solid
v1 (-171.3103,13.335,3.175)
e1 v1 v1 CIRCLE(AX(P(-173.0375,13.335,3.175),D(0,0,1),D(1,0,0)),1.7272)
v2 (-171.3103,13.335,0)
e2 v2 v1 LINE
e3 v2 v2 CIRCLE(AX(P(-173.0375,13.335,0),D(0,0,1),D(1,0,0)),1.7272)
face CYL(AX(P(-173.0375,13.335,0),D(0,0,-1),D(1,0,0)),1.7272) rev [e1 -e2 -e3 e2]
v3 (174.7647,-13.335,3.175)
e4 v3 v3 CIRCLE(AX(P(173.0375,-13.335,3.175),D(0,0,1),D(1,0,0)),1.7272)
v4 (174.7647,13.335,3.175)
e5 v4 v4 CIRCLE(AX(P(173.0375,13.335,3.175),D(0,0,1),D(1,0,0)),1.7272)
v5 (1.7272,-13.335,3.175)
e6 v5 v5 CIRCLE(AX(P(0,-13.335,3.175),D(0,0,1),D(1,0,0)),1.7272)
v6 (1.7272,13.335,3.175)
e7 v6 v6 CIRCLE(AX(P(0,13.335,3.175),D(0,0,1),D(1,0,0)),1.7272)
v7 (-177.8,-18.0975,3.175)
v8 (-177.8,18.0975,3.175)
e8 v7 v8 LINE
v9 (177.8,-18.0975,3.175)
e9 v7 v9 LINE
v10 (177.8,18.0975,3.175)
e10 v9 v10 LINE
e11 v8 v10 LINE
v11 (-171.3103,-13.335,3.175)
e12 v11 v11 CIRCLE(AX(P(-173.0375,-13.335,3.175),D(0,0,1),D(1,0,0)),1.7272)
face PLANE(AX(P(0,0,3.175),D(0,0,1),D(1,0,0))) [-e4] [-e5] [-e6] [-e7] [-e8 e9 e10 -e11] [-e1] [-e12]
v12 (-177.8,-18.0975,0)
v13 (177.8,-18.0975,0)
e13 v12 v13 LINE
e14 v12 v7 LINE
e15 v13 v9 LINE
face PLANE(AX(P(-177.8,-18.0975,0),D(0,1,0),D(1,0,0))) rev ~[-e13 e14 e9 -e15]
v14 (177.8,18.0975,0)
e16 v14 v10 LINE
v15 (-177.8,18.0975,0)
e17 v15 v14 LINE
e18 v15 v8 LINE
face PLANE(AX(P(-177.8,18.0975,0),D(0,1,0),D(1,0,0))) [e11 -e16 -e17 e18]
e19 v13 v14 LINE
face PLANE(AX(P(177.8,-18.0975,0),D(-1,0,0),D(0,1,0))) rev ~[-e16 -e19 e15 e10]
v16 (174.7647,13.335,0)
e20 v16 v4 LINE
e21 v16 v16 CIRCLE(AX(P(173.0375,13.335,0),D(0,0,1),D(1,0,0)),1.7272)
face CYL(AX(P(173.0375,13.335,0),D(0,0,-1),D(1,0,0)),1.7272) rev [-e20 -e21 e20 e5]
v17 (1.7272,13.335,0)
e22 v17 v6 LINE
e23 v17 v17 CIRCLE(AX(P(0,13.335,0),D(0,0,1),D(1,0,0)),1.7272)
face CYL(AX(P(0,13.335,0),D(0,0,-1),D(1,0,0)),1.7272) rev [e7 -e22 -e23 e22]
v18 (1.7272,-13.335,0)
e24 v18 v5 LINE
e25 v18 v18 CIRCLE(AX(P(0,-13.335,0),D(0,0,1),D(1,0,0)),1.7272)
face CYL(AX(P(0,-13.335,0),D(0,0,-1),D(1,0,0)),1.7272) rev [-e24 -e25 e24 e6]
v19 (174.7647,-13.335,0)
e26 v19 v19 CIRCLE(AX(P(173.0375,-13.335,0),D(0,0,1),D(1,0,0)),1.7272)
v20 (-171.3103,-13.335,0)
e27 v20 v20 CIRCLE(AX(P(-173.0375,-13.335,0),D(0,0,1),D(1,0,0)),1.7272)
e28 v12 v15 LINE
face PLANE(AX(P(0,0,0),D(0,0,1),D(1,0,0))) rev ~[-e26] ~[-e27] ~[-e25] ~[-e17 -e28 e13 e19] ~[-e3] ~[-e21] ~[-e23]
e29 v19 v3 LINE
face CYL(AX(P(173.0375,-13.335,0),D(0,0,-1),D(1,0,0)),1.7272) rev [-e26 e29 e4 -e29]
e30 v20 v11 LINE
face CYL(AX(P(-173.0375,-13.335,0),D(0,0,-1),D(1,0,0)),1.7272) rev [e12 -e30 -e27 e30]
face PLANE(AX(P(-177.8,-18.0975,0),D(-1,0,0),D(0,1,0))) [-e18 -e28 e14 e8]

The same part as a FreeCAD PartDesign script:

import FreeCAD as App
import Part
import Sketcher
from FreeCAD import Vector
Q = App.Units.Quantity


def add_polygon(sketch, points):
    """Adds a closed chain of lines whose ends are joined by coincident constraints."""
    first, n = sketch.GeometryCount, len(points)
    for a, b in zip(points, points[1:] + points[:1]):
        sketch.addGeometry(Part.LineSegment(App.Vector(*a, 0), App.Vector(*b, 0)), False)
    for i in range(n):
        sketch.addConstraint(Sketcher.Constraint("Coincident", first + i, 2, first + (i + 1) % n, 1))

doc = App.newDocument("Part")
body = doc.addObject("PartDesign::Body", "Body")

sketch1 = doc.addObject("Sketcher::SketchObject", "Sketch")
body.addObject(sketch1)
sketch1.AttachmentSupport = (doc.XY_Plane, [""])
sketch1.MapMode = "FlatFace"
add_polygon(sketch1, [(-177.8, 18.0975), (-177.8, -18.0975), (177.8, -18.0975), (177.8, 18.0975)])
sketch1.addGeometry(Part.Circle(Vector(-173.0375, -13.335, 0), Vector(0, 0, 1), 1.7272), False)
sketch1.addGeometry(Part.Circle(Vector(0, -13.335, 0), Vector(0, 0, 1), 1.7272), False)
sketch1.addGeometry(Part.Circle(Vector(173.0375, -13.335, 0), Vector(0, 0, 1), 1.7272), False)
sketch1.addGeometry(Part.Circle(Vector(-173.0375, 13.335, 0), Vector(0, 0, 1), 1.7272), False)
sketch1.addGeometry(Part.Circle(Vector(0, 13.335, 0), Vector(0, 0, 1), 1.7272), False)
sketch1.addGeometry(Part.Circle(Vector(173.0375, 13.335, 0), Vector(0, 0, 1), 1.7272), False)
sketch1.addConstraint(Sketcher.Constraint("Vertical", 0))
sketch1.addConstraint(Sketcher.Constraint("Horizontal", 1))
sketch1.addConstraint(Sketcher.Constraint("Vertical", 2))
sketch1.addConstraint(Sketcher.Constraint("Horizontal", 3))
sketch1.addConstraint(Sketcher.Constraint("Equal", 4, 5))
sketch1.addConstraint(Sketcher.Constraint("Equal", 5, 6))
sketch1.addConstraint(Sketcher.Constraint("Equal", 6, 7))
sketch1.addConstraint(Sketcher.Constraint("Equal", 7, 8))
sketch1.addConstraint(Sketcher.Constraint("Equal", 8, 9))
sketch1.addConstraint(Sketcher.Constraint("Symmetric", 6, 3, 7, 3, -1, 1))
sketch1.addConstraint(Sketcher.Constraint("Symmetric", 5, 3, 8, 3, -1, 1))
sketch1.addConstraint(Sketcher.Constraint("Symmetric", 4, 3, 9, 3, -1, 1))
sketch1.addConstraint(Sketcher.Constraint("Symmetric", 0, 2, 2, 2, -1, 1))
sketch1.addConstraint(Sketcher.Constraint("Symmetric", 4, 3, 6, 3, -2))
sketch1.addConstraint(Sketcher.Constraint("PointOnObject", 5, 3, -2))
sketch1.addConstraint(Sketcher.Constraint("Horizontal", 4, 3, 5, 3))
sketch1.addConstraint(Sketcher.Constraint("DistanceX", 1, 1, 1, 2, Q("14 in")))
sketch1.addConstraint(Sketcher.Constraint("Diameter", 4, Q("0.136 in")))
sketch1.addConstraint(Sketcher.Constraint("DistanceY", 0, 2, 0, 1, Q("1.425 in")))
sketch1.addConstraint(Sketcher.Constraint("DistanceY", 4, 3, 7, 3, Q("1.05 in")))
sketch1.addConstraint(Sketcher.Constraint("DistanceX", 4, 3, -1, 1, Q("6.8125 in")))
pad1 = doc.addObject("PartDesign::Pad", "Pad")
body.addObject(pad1)
pad1.Profile = sketch1
pad1.Length = Q("0.125 in")

doc.recompute()
